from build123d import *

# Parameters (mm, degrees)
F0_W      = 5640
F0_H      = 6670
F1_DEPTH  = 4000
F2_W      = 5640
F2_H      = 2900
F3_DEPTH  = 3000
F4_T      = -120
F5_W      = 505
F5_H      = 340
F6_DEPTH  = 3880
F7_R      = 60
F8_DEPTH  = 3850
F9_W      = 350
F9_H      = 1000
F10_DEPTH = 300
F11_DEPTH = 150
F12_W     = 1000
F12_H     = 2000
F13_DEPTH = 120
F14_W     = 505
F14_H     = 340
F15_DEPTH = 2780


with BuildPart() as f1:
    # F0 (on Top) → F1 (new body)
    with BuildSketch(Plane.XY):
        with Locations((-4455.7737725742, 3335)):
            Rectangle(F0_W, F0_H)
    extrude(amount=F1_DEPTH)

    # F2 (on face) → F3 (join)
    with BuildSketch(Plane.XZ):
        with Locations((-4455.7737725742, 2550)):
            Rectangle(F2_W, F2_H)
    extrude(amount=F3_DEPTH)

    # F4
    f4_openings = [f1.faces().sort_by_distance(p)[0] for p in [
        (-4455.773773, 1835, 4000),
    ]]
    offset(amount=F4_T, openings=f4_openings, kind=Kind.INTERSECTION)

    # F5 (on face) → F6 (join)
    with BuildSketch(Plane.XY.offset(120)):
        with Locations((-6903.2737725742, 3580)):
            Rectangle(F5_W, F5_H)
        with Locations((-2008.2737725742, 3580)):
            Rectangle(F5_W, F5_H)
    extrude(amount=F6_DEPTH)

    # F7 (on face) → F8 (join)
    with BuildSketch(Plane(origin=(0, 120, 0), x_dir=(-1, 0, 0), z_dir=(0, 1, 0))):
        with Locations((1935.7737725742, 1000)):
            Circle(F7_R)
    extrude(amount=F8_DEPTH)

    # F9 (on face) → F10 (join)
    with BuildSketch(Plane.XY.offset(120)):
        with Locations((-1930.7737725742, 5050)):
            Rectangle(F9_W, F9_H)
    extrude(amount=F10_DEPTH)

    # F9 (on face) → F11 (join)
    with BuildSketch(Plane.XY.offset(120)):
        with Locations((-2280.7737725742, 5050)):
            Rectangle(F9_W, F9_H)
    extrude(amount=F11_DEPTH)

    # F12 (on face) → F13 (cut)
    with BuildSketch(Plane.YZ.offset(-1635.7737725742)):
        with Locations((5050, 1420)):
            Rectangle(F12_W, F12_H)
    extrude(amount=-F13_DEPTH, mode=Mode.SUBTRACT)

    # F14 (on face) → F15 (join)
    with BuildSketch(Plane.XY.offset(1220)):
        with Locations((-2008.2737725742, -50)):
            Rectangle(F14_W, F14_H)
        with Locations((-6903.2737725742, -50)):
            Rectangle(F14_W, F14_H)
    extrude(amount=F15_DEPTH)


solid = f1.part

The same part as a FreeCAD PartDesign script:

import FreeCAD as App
import Part
import Sketcher

V = App.Vector
Q = App.Units.Quantity


def faces_at(feature, points):
    """Names of the faces that lie closest to the given points."""
    faces = feature.Shape.Faces
    near = lambda p: min(range(len(faces)), key=lambda i: faces[i].distToShape(Part.Vertex(*p))[0])
    return sorted({f"Face{near(p) + 1}" for p in points})


def add_polygon(sketch, points):
    """Adds a closed chain of lines whose ends are joined by coincident constraints."""
    first, n = sketch.GeometryCount, len(points)
    for a, b in zip(points, points[1:] + points[:1]):
        sketch.addGeometry(Part.LineSegment(App.Vector(*a, 0), App.Vector(*b, 0)), False)
    for i in range(n):
        sketch.addConstraint(Sketcher.Constraint("Coincident", first + i, 2, first + (i + 1) % n, 1))

doc = App.newDocument("Part")
body = doc.addObject("PartDesign::Body", "Body")

# Sketch on XY plane
sketch1 = body.newObject("Sketcher::SketchObject", "Sketch")
sketch1.AttachmentSupport = (doc.getObject("XY_Plane"), [""])
sketch1.MapMode = "FlatFace"
add_polygon(sketch1, [(-7276, 6670), (-7276, 0), (-1636, 0), (-1636, 6670)])  # lines 0-3
sketch1.addConstraint([
    Sketcher.Constraint("Vertical", 0),
    Sketcher.Constraint("Horizontal", 1),
    Sketcher.Constraint("Vertical", 2),
    Sketcher.Constraint("Horizontal", 3),
    Sketcher.Constraint("PointOnObject", 0, 2, -1),
    Sketcher.Constraint("DistanceX", 1, 1, 1, 2, Q("5640 mm")),
    Sketcher.Constraint("DistanceY", 0, 2, 0, 1, Q("6670 mm")),
    Sketcher.Constraint("DistanceX", 0, 2, -1, 1, Q("7275.773773 mm")),
])
pad1 = body.newObject("PartDesign::Pad", "Pad")
pad1.Profile = sketch1
pad1.Length = 4000

# Sketch on XZ plane
sketch2 = body.newObject("Sketcher::SketchObject", "Sketch001")
sketch2.AttachmentSupport = (doc.getObject("XZ_Plane"), [""])
sketch2.MapMode = "FlatFace"
add_polygon(sketch2, [(-7276, 4000), (-7276, 1100), (-1636, 1100), (-1636, 4000)])  # lines 0-3
sketch2.addConstraint([
    Sketcher.Constraint("Vertical", 0),
    Sketcher.Constraint("Horizontal", 1),
    Sketcher.Constraint("Vertical", 2),
    Sketcher.Constraint("Horizontal", 3),
    Sketcher.Constraint("DistanceX", 1, 1, 1, 2, Q("5640 mm")),
    Sketcher.Constraint("DistanceY", 0, 2, 0, 1, Q("2900 mm")),
    Sketcher.Constraint("DistanceY", -1, 1, 0, 2, Q("1100 mm")),
    Sketcher.Constraint("DistanceX", 0, 2, -1, 1, Q("7275.773773 mm")),
])
pad2 = body.newObject("PartDesign::Pad", "Pad001")
pad2.Profile = sketch2
pad2.Length = 3000
doc.recompute()

thickness = body.newObject("PartDesign::Thickness", "Thickness")
thickness.Base = (pad2, faces_at(pad2, [(-4455.774, 1835, 4000)]))
thickness.Value = 120
thickness.Reversed = True
thickness.Join = "Intersection"

# Sketch on XY plane
sketch3 = body.newObject("Sketcher::SketchObject", "Sketch002")
sketch3.AttachmentSupport = (doc.getObject("XY_Plane"), [""])
sketch3.MapMode = "FlatFace"
sketch3.AttachmentOffset = App.Placement(V(0, 0, 120), App.Rotation())
add_polygon(sketch3, [(-7156, 3750), (-7156, 3410), (-6651, 3410), (-6651, 3750)])  # lines 0-3
add_polygon(sketch3, [(-2261, 3750), (-2261, 3410), (-1756, 3410), (-1756, 3750)])  # lines 4-7
sketch3.addConstraint([
    Sketcher.Constraint("Vertical", 0),
    Sketcher.Constraint("Horizontal", 1),
    Sketcher.Constraint("Vertical", 2),
    Sketcher.Constraint("Horizontal", 3),
    Sketcher.Constraint("Vertical", 4),
    Sketcher.Constraint("Horizontal", 5),
    Sketcher.Constraint("Vertical", 6),
    Sketcher.Constraint("Horizontal", 7),
    Sketcher.Constraint("Horizontal", 1, 2, 4, 2),
    Sketcher.Constraint("Horizontal", 3, 2, 6, 2),
    Sketcher.Constraint("Equal", 3, 5),
    Sketcher.Constraint("DistanceX", 1, 1, 1, 2, Q("505 mm")),
    Sketcher.Constraint("DistanceY", 0, 2, 0, 1, Q("340 mm")),
    Sketcher.Constraint("DistanceY", -1, 1, 0, 2, Q("3410 mm")),
    Sketcher.Constraint("DistanceX", 1, 2, 4, 2, Q("4390 mm")),
    Sketcher.Constraint("DistanceX", 0, 2, -1, 1, Q("7155.773773 mm")),
])
pad3 = body.newObject("PartDesign::Pad", "Pad002")
pad3.Profile = sketch3
pad3.Length = 3880

# Sketch on XZ plane
sketch4 = body.newObject("Sketcher::SketchObject", "Sketch003")
sketch4.AttachmentSupport = (doc.getObject("XZ_Plane"), [""])
sketch4.MapMode = "FlatFace"
sketch4.AttachmentOffset = App.Placement(V(0, 0, -120), App.Rotation())
sketch4.addGeometry(Part.Circle(V(-1936, 1000, 0), V(0, 0, 1), 60), False)
sketch4.addConstraint([
    Sketcher.Constraint("Diameter", 0, Q("120 mm")),
    Sketcher.Constraint("DistanceY", -1, 1, 0, 3, Q("1000 mm")),
    Sketcher.Constraint("DistanceX", 0, 3, -1, 1, Q("1935.773773 mm")),
])
pad4 = body.newObject("PartDesign::Pad", "Pad003")
pad4.Profile = sketch4
pad4.Length = 3850
pad4.Reversed = True

# Sketch on XY plane
sketch5 = body.newObject("Sketcher::SketchObject", "Sketch004")
sketch5.AttachmentSupport = (doc.getObject("XY_Plane"), [""])
sketch5.MapMode = "FlatFace"
sketch5.AttachmentOffset = App.Placement(V(0, 0, 120), App.Rotation())
add_polygon(sketch5, [(-2106, 5550), (-2106, 4550), (-1756, 4550), (-1756, 5550)])  # lines 0-3
sketch5.addConstraint([
    Sketcher.Constraint("Vertical", 0),
    Sketcher.Constraint("Horizontal", 1),
    Sketcher.Constraint("Vertical", 2),
    Sketcher.Constraint("Horizontal", 3),
    Sketcher.Constraint("DistanceX", 1, 1, 1, 2, Q("350 mm")),
    Sketcher.Constraint("DistanceY", 0, 2, 0, 1, Q("1000 mm")),
    Sketcher.Constraint("DistanceY", -1, 1, 0, 2, Q("4550 mm")),
    Sketcher.Constraint("DistanceX", 0, 2, -1, 1, Q("2105.773773 mm")),
])
pad5 = body.newObject("PartDesign::Pad", "Pad004")
pad5.Profile = sketch5
pad5.Length = 300

# Sketch on XY plane
sketch6 = body.newObject("Sketcher::SketchObject", "Sketch005")
sketch6.AttachmentSupport = (doc.getObject("XY_Plane"), [""])
sketch6.MapMode = "FlatFace"
sketch6.AttachmentOffset = App.Placement(V(0, 0, 120), App.Rotation())
add_polygon(sketch6, [(-2456, 5550), (-2456, 4550), (-2106, 4550), (-2106, 5550)])  # lines 0-3
sketch6.addConstraint([
    Sketcher.Constraint("Vertical", 0),
    Sketcher.Constraint("Horizontal", 1),
    Sketcher.Constraint("Vertical", 2),
    Sketcher.Constraint("Horizontal", 3),
    Sketcher.Constraint("DistanceX", 1, 1, 1, 2, Q("350 mm")),
    Sketcher.Constraint("DistanceY", 0, 2, 0, 1, Q("1000 mm")),
    Sketcher.Constraint("DistanceY", -1, 1, 0, 2, Q("4550 mm")),
    Sketcher.Constraint("DistanceX", 0, 2, -1, 1, Q("2455.773773 mm")),
])
pad6 = body.newObject("PartDesign::Pad", "Pad005")
pad6.Profile = sketch6
pad6.Length = 150

# Sketch on YZ plane
sketch7 = body.newObject("Sketcher::SketchObject", "Sketch006")
sketch7.AttachmentSupport = (doc.getObject("YZ_Plane"), [""])
sketch7.MapMode = "FlatFace"
sketch7.AttachmentOffset = App.Placement(V(0, 0, -1635.773773), App.Rotation())
add_polygon(sketch7, [(4550, 2420), (4550, 420), (5550, 420), (5550, 2420)])  # lines 0-3
sketch7.addConstraint([
    Sketcher.Constraint("Vertical", 0),
    Sketcher.Constraint("Horizontal", 1),
    Sketcher.Constraint("Vertical", 2),
    Sketcher.Constraint("Horizontal", 3),
    Sketcher.Constraint("DistanceX", 1, 1, 1, 2, Q("1000 mm")),
    Sketcher.Constraint("DistanceY", 0, 2, 0, 1, Q("2000 mm")),
    Sketcher.Constraint("DistanceX", -1, 1, 0, 2, Q("4550 mm")),
    Sketcher.Constraint("DistanceY", -1, 1, 0, 2, Q("420 mm")),
])
pocket1 = body.newObject("PartDesign::Pocket", "Pocket")
pocket1.Profile = sketch7
pocket1.Length = 120

# Sketch on XY plane
sketch8 = body.newObject("Sketcher::SketchObject", "Sketch007")
sketch8.AttachmentSupport = (doc.getObject("XY_Plane"), [""])
sketch8.MapMode = "FlatFace"
sketch8.AttachmentOffset = App.Placement(V(0, 0, 1220), App.Rotation())
add_polygon(sketch8, [(-2261, 120), (-2261, -220), (-1756, -220), (-1756, 120)])  # lines 0-3
add_polygon(sketch8, [(-7156, 120), (-7156, -220), (-6651, -220), (-6651, 120)])  # lines 4-7
sketch8.addConstraint([
    Sketcher.Constraint("Vertical", 0),
    Sketcher.Constraint("Horizontal", 1),
    Sketcher.Constraint("Vertical", 2),
    Sketcher.Constraint("Horizontal", 3),
    Sketcher.Constraint("Vertical", 4),
    Sketcher.Constraint("Horizontal", 5),
    Sketcher.Constraint("Vertical", 6),
    Sketcher.Constraint("Horizontal", 7),
    Sketcher.Constraint("Horizontal", 1, 2, 4, 2),
    Sketcher.Constraint("Horizontal", 3, 2, 6, 2),
    Sketcher.Constraint("Equal", 3, 5),
    Sketcher.Constraint("DistanceX", 1, 1, 1, 2, Q("505 mm")),
    Sketcher.Constraint("DistanceY", 0, 2, 0, 1, Q("340 mm")),
    Sketcher.Constraint("DistanceY", 0, 2, -1, 1, Q("220 mm")),
    Sketcher.Constraint("DistanceX", 4, 2, 0, 2, Q("4895 mm")),
    Sketcher.Constraint("DistanceX", 0, 2, -1, 1, Q("2260.773773 mm")),
])
pad7 = body.newObject("PartDesign::Pad", "Pad006")
pad7.Profile = sketch8
pad7.Length = 2780

doc.recompute()
